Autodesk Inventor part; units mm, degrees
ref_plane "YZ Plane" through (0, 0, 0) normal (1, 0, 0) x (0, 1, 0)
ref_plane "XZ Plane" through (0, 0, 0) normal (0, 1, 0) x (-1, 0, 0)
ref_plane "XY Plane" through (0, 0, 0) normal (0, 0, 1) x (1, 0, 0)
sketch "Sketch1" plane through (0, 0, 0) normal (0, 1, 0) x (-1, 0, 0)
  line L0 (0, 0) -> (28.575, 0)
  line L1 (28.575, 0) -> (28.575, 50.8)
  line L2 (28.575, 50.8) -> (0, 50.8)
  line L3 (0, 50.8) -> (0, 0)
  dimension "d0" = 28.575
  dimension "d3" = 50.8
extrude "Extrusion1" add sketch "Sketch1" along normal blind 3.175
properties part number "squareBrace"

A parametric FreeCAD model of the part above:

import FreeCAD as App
import Part
import Sketcher
from FreeCAD import Vector
Q = App.Units.Quantity

doc = App.newDocument("Part")
body = doc.addObject("PartDesign::Body", "Body")

sketch1 = body.newObject("Sketcher::SketchObject", "Sketch")
sketch1.AttachmentSupport = (doc.getObject("XZ_Plane"), [""])
sketch1.MapMode = "FlatFace"
sketch1.addGeometry(Part.LineSegment(Vector(0, 51, 0), Vector(0, 0, 0)), False)
sketch1.addGeometry(Part.LineSegment(Vector(0, 0, 0), Vector(-29, 0, 0)), False)
sketch1.addGeometry(Part.LineSegment(Vector(-29, 0, 0), Vector(-29, 51, 0)), False)
sketch1.addGeometry(Part.LineSegment(Vector(-29, 51, 0), Vector(0, 51, 0)), False)
sketch1.addConstraint(Sketcher.Constraint("Coincident", 0, 2, 1, 1))
sketch1.addConstraint(Sketcher.Constraint("Coincident", 1, 2, 2, 1))
sketch1.addConstraint(Sketcher.Constraint("Coincident", 2, 2, 3, 1))
sketch1.addConstraint(Sketcher.Constraint("Coincident", 3, 2, 0, 1))
sketch1.addConstraint(Sketcher.Constraint("Vertical", 0))
sketch1.addConstraint(Sketcher.Constraint("Horizontal", 1))
sketch1.addConstraint(Sketcher.Constraint("Vertical", 2))
sketch1.addConstraint(Sketcher.Constraint("Horizontal", 3))
sketch1.addConstraint(Sketcher.Constraint("Coincident", 0, 2, -1, 1))
sketch1.addConstraint(Sketcher.Constraint("DistanceY", 0, 2, 0, 1, Q("2 in")))
sketch1.addConstraint(Sketcher.Constraint("DistanceX", 1, 2, 1, 1, Q("1.125 in")))
pad1 = body.newObject("PartDesign::Pad", "Pad")
pad1.Profile = sketch1
pad1.Length = Q("0.125 in")
pad1.Reversed = True

doc.recompute()
